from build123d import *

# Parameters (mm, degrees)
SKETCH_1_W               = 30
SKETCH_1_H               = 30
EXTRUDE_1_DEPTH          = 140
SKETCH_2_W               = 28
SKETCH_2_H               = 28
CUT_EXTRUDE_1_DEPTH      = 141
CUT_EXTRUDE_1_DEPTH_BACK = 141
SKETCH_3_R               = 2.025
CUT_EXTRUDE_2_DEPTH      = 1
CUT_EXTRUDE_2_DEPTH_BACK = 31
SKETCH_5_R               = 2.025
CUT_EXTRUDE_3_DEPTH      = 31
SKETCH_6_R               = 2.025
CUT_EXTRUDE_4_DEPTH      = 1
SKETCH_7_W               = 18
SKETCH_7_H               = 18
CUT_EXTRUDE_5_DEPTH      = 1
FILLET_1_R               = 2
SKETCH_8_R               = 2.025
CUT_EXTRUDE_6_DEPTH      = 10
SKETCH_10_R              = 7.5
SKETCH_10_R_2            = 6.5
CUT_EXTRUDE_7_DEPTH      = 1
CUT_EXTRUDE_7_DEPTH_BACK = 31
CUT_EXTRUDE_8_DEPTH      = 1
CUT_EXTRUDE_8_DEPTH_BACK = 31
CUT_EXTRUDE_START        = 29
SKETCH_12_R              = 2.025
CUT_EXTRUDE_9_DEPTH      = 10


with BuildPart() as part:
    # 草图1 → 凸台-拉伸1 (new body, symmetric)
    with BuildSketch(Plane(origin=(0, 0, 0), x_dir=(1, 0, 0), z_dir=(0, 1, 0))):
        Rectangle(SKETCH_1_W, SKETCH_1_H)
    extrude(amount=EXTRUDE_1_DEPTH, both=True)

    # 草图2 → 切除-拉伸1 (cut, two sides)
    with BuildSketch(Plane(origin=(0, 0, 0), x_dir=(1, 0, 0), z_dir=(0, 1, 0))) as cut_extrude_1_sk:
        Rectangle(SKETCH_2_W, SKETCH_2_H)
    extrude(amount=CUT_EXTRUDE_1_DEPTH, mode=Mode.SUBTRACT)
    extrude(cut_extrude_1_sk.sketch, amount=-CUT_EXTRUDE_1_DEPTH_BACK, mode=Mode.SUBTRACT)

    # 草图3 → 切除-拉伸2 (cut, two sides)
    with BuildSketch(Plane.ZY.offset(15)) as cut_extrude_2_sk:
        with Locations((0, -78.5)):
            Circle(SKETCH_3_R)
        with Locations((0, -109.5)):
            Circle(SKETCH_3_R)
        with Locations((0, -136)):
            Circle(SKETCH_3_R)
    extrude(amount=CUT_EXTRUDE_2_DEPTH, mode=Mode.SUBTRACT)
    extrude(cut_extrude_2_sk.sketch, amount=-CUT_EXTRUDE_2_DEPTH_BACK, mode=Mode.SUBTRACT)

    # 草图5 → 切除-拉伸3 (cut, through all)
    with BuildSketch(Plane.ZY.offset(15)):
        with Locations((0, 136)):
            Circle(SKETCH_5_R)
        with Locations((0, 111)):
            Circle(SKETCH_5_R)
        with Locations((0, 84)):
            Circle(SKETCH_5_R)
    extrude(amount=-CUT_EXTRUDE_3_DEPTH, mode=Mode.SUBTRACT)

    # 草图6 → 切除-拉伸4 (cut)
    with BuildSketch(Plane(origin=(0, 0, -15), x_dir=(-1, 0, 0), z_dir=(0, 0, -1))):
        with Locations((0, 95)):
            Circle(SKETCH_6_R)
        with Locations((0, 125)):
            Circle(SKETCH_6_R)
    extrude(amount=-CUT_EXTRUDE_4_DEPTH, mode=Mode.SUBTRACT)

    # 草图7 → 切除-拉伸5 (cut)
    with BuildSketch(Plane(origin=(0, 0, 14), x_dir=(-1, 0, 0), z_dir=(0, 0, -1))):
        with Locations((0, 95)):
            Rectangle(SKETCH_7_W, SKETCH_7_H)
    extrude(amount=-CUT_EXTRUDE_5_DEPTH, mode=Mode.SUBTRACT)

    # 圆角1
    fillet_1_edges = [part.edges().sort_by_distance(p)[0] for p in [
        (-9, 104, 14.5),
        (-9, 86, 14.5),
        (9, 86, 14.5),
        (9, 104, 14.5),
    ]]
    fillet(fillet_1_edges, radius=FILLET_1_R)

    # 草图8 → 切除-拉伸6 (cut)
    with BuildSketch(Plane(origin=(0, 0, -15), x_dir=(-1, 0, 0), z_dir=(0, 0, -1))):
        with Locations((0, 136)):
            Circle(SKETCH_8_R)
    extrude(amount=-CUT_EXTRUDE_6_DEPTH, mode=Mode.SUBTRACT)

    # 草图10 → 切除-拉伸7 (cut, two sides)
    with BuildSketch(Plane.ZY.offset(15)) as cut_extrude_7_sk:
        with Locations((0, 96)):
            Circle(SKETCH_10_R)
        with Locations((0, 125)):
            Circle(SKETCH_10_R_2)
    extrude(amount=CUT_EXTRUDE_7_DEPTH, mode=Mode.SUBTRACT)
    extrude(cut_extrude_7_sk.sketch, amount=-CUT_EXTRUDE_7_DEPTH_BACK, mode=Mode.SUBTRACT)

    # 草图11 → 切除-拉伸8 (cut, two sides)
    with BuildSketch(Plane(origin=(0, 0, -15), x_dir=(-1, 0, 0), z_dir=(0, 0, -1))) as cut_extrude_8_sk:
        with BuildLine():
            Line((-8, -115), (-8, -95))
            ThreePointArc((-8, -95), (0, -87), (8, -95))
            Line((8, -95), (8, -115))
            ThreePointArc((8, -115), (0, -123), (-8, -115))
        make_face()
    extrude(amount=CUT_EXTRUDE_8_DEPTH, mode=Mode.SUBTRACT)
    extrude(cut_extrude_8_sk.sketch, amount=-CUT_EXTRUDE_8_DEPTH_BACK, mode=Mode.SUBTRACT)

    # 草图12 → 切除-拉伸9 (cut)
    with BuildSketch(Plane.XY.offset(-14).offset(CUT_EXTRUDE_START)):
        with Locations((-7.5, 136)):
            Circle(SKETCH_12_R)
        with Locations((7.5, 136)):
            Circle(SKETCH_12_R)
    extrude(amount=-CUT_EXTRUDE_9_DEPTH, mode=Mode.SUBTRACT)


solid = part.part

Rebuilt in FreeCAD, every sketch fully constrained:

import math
import FreeCAD as App
import Part
import Sketcher
from FreeCAD import Vector
Q = App.Units.Quantity


def edges_at(feature, points):
    """Names of the edges that pass closest to the given points."""
    edges = feature.Shape.Edges
    near = lambda p: min(range(len(edges)), key=lambda i: edges[i].distToShape(Part.Vertex(*p))[0])
    return sorted({f"Edge{near(p) + 1}" for p in points})

doc = App.newDocument("Part")
body = doc.addObject("PartDesign::Body", "Body")

# Sketch on XZ plane
sketch1 = body.newObject("Sketcher::SketchObject", "Sketch")
sketch1.AttachmentSupport = (doc.getObject("XZ_Plane"), [""])
sketch1.MapMode = "FlatFace"
sketch1.addGeometry(Part.LineSegment(Vector(-15, -15, 0), Vector(-15, 15, 0)), False)
sketch1.addGeometry(Part.LineSegment(Vector(-15, 15, 0), Vector(15, 15, 0)), False)
sketch1.addGeometry(Part.LineSegment(Vector(15, 15, 0), Vector(15, -15, 0)), False)
sketch1.addGeometry(Part.LineSegment(Vector(15, -15, 0), Vector(-15, -15, 0)), False)
sketch1.addConstraint(Sketcher.Constraint("Coincident", 0, 2, 1, 1))
sketch1.addConstraint(Sketcher.Constraint("Coincident", 1, 2, 2, 1))
sketch1.addConstraint(Sketcher.Constraint("Coincident", 2, 2, 3, 1))
sketch1.addConstraint(Sketcher.Constraint("Coincident", 3, 2, 0, 1))
sketch1.addConstraint(Sketcher.Constraint("Vertical", 0))
sketch1.addConstraint(Sketcher.Constraint("Horizontal", 1))
sketch1.addConstraint(Sketcher.Constraint("Vertical", 2))
sketch1.addConstraint(Sketcher.Constraint("Horizontal", 3))
sketch1.addConstraint(Sketcher.Constraint("Symmetric", 0, 2, 2, 2, -1, 1))
sketch1.addConstraint(Sketcher.Constraint("Equal", 3, 0))
sketch1.addConstraint(Sketcher.Constraint("DistanceX", 1, 1, 1, 2, Q("30 mm")))
pad1 = body.newObject("PartDesign::Pad", "Pad")
pad1.Profile = sketch1
pad1.Length = 280
pad1.Midplane = True

# Sketch on XZ plane
sketch2 = body.newObject("Sketcher::SketchObject", "Sketch001")
sketch2.AttachmentSupport = (doc.getObject("XZ_Plane"), [""])
sketch2.MapMode = "FlatFace"
sketch2.addGeometry(Part.LineSegment(Vector(-14, -14, 0), Vector(-14, 14, 0)), False)
sketch2.addGeometry(Part.LineSegment(Vector(-14, 14, 0), Vector(14, 14, 0)), False)
sketch2.addGeometry(Part.LineSegment(Vector(14, 14, 0), Vector(14, -14, 0)), False)
sketch2.addGeometry(Part.LineSegment(Vector(14, -14, 0), Vector(-14, -14, 0)), False)
sketch2.addConstraint(Sketcher.Constraint("Coincident", 0, 2, 1, 1))
sketch2.addConstraint(Sketcher.Constraint("Coincident", 1, 2, 2, 1))
sketch2.addConstraint(Sketcher.Constraint("Coincident", 2, 2, 3, 1))
sketch2.addConstraint(Sketcher.Constraint("Coincident", 3, 2, 0, 1))
sketch2.addConstraint(Sketcher.Constraint("Vertical", 0))
sketch2.addConstraint(Sketcher.Constraint("Horizontal", 1))
sketch2.addConstraint(Sketcher.Constraint("Vertical", 2))
sketch2.addConstraint(Sketcher.Constraint("Horizontal", 3))
sketch2.addConstraint(Sketcher.Constraint("Symmetric", 0, 2, 2, 2, -1, 1))
sketch2.addConstraint(Sketcher.Constraint("Equal", 3, 0))
sketch2.addConstraint(Sketcher.Constraint("DistanceX", 1, 1, 1, 2, Q("28 mm")))
pocket1 = body.newObject("PartDesign::Pocket", "Pocket")
pocket1.Profile = sketch2
pocket1.Type = "ThroughAll"
pocket1.Midplane = True

# Sketch on YZ plane
sketch3 = body.newObject("Sketcher::SketchObject", "Sketch002")
sketch3.AttachmentSupport = (doc.getObject("YZ_Plane"), [""])
sketch3.MapMode = "FlatFace"
sketch3.AttachmentOffset = App.Placement(Vector(0, 0, -15), App.Rotation())
sketch3.addGeometry(Part.Circle(Vector(-78.5, 0, 0), Vector(0, 0, 1), 2.025), False)
sketch3.addGeometry(Part.Circle(Vector(-109.5, 0, 0), Vector(0, 0, 1), 2.025), False)
sketch3.addGeometry(Part.Circle(Vector(-136, 0, 0), Vector(0, 0, 1), 2.025), False)
sketch3.addConstraint(Sketcher.Constraint("Equal", 0, 1))
sketch3.addConstraint(Sketcher.Constraint("Equal", 1, 2))
sketch3.addConstraint(Sketcher.Constraint("PointOnObject", 0, 3, -1))
sketch3.addConstraint(Sketcher.Constraint("PointOnObject", 1, 3, -1))
sketch3.addConstraint(Sketcher.Constraint("PointOnObject", 2, 3, -1))
sketch3.addConstraint(Sketcher.Constraint("Diameter", 0, Q("4.05 mm")))
sketch3.addConstraint(Sketcher.Constraint("DistanceX", 2, 3, -1, 1, Q("136 mm")))
sketch3.addConstraint(Sketcher.Constraint("DistanceX", 1, 3, 0, 3, Q("31 mm")))
sketch3.addConstraint(Sketcher.Constraint("DistanceX", 0, 3, -1, 1, Q("78.5 mm")))
pocket2 = body.newObject("PartDesign::Pocket", "Pocket001")
pocket2.Profile = sketch3
pocket2.Type = "ThroughAll"
pocket2.Midplane = True

# Sketch on YZ plane
sketch4 = body.newObject("Sketcher::SketchObject", "Sketch003")
sketch4.AttachmentSupport = (doc.getObject("YZ_Plane"), [""])
sketch4.MapMode = "FlatFace"
sketch4.AttachmentOffset = App.Placement(Vector(0, 0, -15), App.Rotation())
sketch4.addGeometry(Part.Circle(Vector(136, 0, 0), Vector(0, 0, 1), 2.025), False)
sketch4.addGeometry(Part.Circle(Vector(111, 0, 0), Vector(0, 0, 1), 2.025), False)
sketch4.addGeometry(Part.Circle(Vector(84, 0, 0), Vector(0, 0, 1), 2.025), False)
sketch4.addConstraint(Sketcher.Constraint("Equal", 0, 1))
sketch4.addConstraint(Sketcher.Constraint("Equal", 1, 2))
sketch4.addConstraint(Sketcher.Constraint("PointOnObject", 0, 3, -1))
sketch4.addConstraint(Sketcher.Constraint("PointOnObject", 1, 3, -1))
sketch4.addConstraint(Sketcher.Constraint("PointOnObject", 2, 3, -1))
sketch4.addConstraint(Sketcher.Constraint("Diameter", 0, Q("4.05 mm")))
sketch4.addConstraint(Sketcher.Constraint("DistanceX", -1, 1, 0, 3, Q("136 mm")))
sketch4.addConstraint(Sketcher.Constraint("DistanceX", -1, 1, 1, 3, Q("111 mm")))
sketch4.addConstraint(Sketcher.Constraint("DistanceX", -1, 1, 2, 3, Q("84 mm")))
pocket3 = body.newObject("PartDesign::Pocket", "Pocket002")
pocket3.Profile = sketch4
pocket3.Type = "ThroughAll"
pocket3.Reversed = True

# Sketch on XY plane
sketch5 = body.newObject("Sketcher::SketchObject", "Sketch004")
sketch5.AttachmentSupport = (doc.getObject("XY_Plane"), [""])
sketch5.MapMode = "FlatFace"
sketch5.AttachmentOffset = App.Placement(Vector(0, 0, -15), App.Rotation())
sketch5.addGeometry(Part.Circle(Vector(0, 95, 0), Vector(0, 0, 1), 2.025), False)
sketch5.addGeometry(Part.Circle(Vector(0, 125, 0), Vector(0, 0, 1), 2.025), False)
sketch5.addConstraint(Sketcher.Constraint("Equal", 0, 1))
sketch5.addConstraint(Sketcher.Constraint("PointOnObject", 0, 3, -2))
sketch5.addConstraint(Sketcher.Constraint("PointOnObject", 1, 3, -2))
sketch5.addConstraint(Sketcher.Constraint("Diameter", 0, Q("4.05 mm")))
sketch5.addConstraint(Sketcher.Constraint("DistanceY", -1, 1, 0, 3, Q("95 mm")))
sketch5.addConstraint(Sketcher.Constraint("DistanceY", -1, 1, 1, 3, Q("125 mm")))
pocket4 = body.newObject("PartDesign::Pocket", "Pocket003")
pocket4.Profile = sketch5
pocket4.Length = 1
pocket4.Reversed = True

# Sketch on XY plane
sketch6 = body.newObject("Sketcher::SketchObject", "Sketch005")
sketch6.AttachmentSupport = (doc.getObject("XY_Plane"), [""])
sketch6.MapMode = "FlatFace"
sketch6.AttachmentOffset = App.Placement(Vector(0, 0, 14), App.Rotation())
sketch6.addGeometry(Part.LineSegment(Vector(9, 104, 0), Vector(9, 86, 0)), False)
sketch6.addGeometry(Part.LineSegment(Vector(9, 86, 0), Vector(-9, 86, 0)), False)
sketch6.addGeometry(Part.LineSegment(Vector(-9, 86, 0), Vector(-9, 104, 0)), False)
sketch6.addGeometry(Part.LineSegment(Vector(-9, 104, 0), Vector(9, 104, 0)), False)
sketch6.addConstraint(Sketcher.Constraint("Coincident", 0, 2, 1, 1))
sketch6.addConstraint(Sketcher.Constraint("Coincident", 1, 2, 2, 1))
sketch6.addConstraint(Sketcher.Constraint("Coincident", 2, 2, 3, 1))
sketch6.addConstraint(Sketcher.Constraint("Coincident", 3, 2, 0, 1))
sketch6.addConstraint(Sketcher.Constraint("Vertical", 0))
sketch6.addConstraint(Sketcher.Constraint("Horizontal", 1))
sketch6.addConstraint(Sketcher.Constraint("Vertical", 2))
sketch6.addConstraint(Sketcher.Constraint("Horizontal", 3))
sketch6.addConstraint(Sketcher.Constraint("Equal", 3, 0))
sketch6.addConstraint(Sketcher.Constraint("DistanceX", 1, 2, 1, 1, Q("18 mm")))
sketch6.addConstraint(Sketcher.Constraint("DistanceX", -1, 1, 0, 2, Q("9 mm")))
sketch6.addConstraint(Sketcher.Constraint("DistanceY", -1, 1, 0, 2, Q("86 mm")))
pocket5 = body.newObject("PartDesign::Pocket", "Pocket004")
pocket5.Profile = sketch6
pocket5.Length = 1
pocket5.Reversed = True
doc.recompute()

fillet = body.newObject("PartDesign::Fillet", "Fillet")
fillet.Base = (pocket5, edges_at(pocket5, [
    (-9, 104, 14.5),
    (-9, 86, 14.5),
    (9, 86, 14.5),
    (9, 104, 14.5),
]))
fillet.Radius = 2

# Sketch on XY plane
sketch7 = body.newObject("Sketcher::SketchObject", "Sketch006")
sketch7.AttachmentSupport = (doc.getObject("XY_Plane"), [""])
sketch7.MapMode = "FlatFace"
sketch7.AttachmentOffset = App.Placement(Vector(0, 0, -15), App.Rotation())
sketch7.addGeometry(Part.Circle(Vector(0, 136, 0), Vector(0, 0, 1), 2.025), False)
sketch7.addConstraint(Sketcher.Constraint("PointOnObject", 0, 3, -2))
sketch7.addConstraint(Sketcher.Constraint("Diameter", 0, Q("4.05 mm")))
sketch7.addConstraint(Sketcher.Constraint("DistanceY", -1, 1, 0, 3, Q("136 mm")))
pocket6 = body.newObject("PartDesign::Pocket", "Pocket005")
pocket6.Profile = sketch7
pocket6.Length = 10
pocket6.Reversed = True

# Sketch on YZ plane
sketch8 = body.newObject("Sketcher::SketchObject", "Sketch007")
sketch8.AttachmentSupport = (doc.getObject("YZ_Plane"), [""])
sketch8.MapMode = "FlatFace"
sketch8.AttachmentOffset = App.Placement(Vector(0, 0, -15), App.Rotation())
sketch8.addGeometry(Part.Circle(Vector(96, 0, 0), Vector(0, 0, 1), 7.5), False)
sketch8.addGeometry(Part.Circle(Vector(125, 0, 0), Vector(0, 0, 1), 6.5), False)
sketch8.addConstraint(Sketcher.Constraint("PointOnObject", 0, 3, -1))
sketch8.addConstraint(Sketcher.Constraint("PointOnObject", 1, 3, -1))
sketch8.addConstraint(Sketcher.Constraint("Diameter", 0, Q("15 mm")))
sketch8.addConstraint(Sketcher.Constraint("Diameter", 1, Q("13 mm")))
sketch8.addConstraint(Sketcher.Constraint("DistanceX", -1, 1, 0, 3, Q("96 mm")))
sketch8.addConstraint(Sketcher.Constraint("DistanceX", -1, 1, 1, 3, Q("125 mm")))
pocket7 = body.newObject("PartDesign::Pocket", "Pocket006")
pocket7.Profile = sketch8
pocket7.Type = "ThroughAll"
pocket7.Midplane = True

# Sketch on XY plane
sketch9 = body.newObject("Sketcher::SketchObject", "Sketch008")
sketch9.AttachmentSupport = (doc.getObject("XY_Plane"), [""])
sketch9.MapMode = "FlatFace"
sketch9.AttachmentOffset = App.Placement(Vector(0, 0, -15), App.Rotation())
sketch9.addGeometry(Part.LineSegment(Vector(8, -95, 0), Vector(8, -115, 0)), False)
sketch9.addGeometry(Part.ArcOfCircle(Part.Circle(Vector(0, -115, 0), Vector(0, 0, 1), 8), math.radians(180), math.radians(360)), False)
sketch9.addGeometry(Part.LineSegment(Vector(-8, -115, 0), Vector(-8, -95, 0)), False)
sketch9.addGeometry(Part.ArcOfCircle(Part.Circle(Vector(0, -95, 0), Vector(0, 0, 1), 8), math.radians(0), math.radians(180)), False)
sketch9.addConstraint(Sketcher.Constraint("Tangent", 0, 2, 1, 2))
sketch9.addConstraint(Sketcher.Constraint("Tangent", 1, 1, 2, 1))
sketch9.addConstraint(Sketcher.Constraint("Tangent", 2, 2, 3, 2))
sketch9.addConstraint(Sketcher.Constraint("Tangent", 3, 1, 0, 1))
sketch9.addConstraint(Sketcher.Constraint("Vertical", 0))
sketch9.addConstraint(Sketcher.Constraint("Vertical", 2))
sketch9.addConstraint(Sketcher.Constraint("PointOnObject", 1, 3, -2))
sketch9.addConstraint(Sketcher.Constraint("Radius", 1, Q("8 mm")))
sketch9.addConstraint(Sketcher.Constraint("DistanceY", 0, 2, 0, 1, Q("20 mm")))
sketch9.addConstraint(Sketcher.Constraint("DistanceY", 1, 3, -1, 1, Q("115 mm")))
pocket8 = body.newObject("PartDesign::Pocket", "Pocket007")
pocket8.Profile = sketch9
pocket8.Type = "ThroughAll"
pocket8.Midplane = True

# Sketch on XY plane
sketch10 = body.newObject("Sketcher::SketchObject", "Sketch009")
sketch10.AttachmentSupport = (doc.getObject("XY_Plane"), [""])
sketch10.MapMode = "FlatFace"
sketch10.AttachmentOffset = App.Placement(Vector(0, 0, 15), App.Rotation())
sketch10.addGeometry(Part.Circle(Vector(-7.5, 136, 0), Vector(0, 0, 1), 2.025), False)
sketch10.addGeometry(Part.Circle(Vector(7.5, 136, 0), Vector(0, 0, 1), 2.025), False)
sketch10.addConstraint(Sketcher.Constraint("Equal", 0, 1))
sketch10.addConstraint(Sketcher.Constraint("Symmetric", 0, 3, 1, 3, -2))
sketch10.addConstraint(Sketcher.Constraint("Diameter", 0, Q("4.05 mm")))
sketch10.addConstraint(Sketcher.Constraint("DistanceY", -1, 1, 0, 3, Q("136 mm")))
sketch10.addConstraint(Sketcher.Constraint("DistanceX", 0, 3, 1, 3, Q("15 mm")))
pocket9 = body.newObject("PartDesign::Pocket", "Pocket008")
pocket9.Profile = sketch10
pocket9.Length = 10

doc.recompute()
